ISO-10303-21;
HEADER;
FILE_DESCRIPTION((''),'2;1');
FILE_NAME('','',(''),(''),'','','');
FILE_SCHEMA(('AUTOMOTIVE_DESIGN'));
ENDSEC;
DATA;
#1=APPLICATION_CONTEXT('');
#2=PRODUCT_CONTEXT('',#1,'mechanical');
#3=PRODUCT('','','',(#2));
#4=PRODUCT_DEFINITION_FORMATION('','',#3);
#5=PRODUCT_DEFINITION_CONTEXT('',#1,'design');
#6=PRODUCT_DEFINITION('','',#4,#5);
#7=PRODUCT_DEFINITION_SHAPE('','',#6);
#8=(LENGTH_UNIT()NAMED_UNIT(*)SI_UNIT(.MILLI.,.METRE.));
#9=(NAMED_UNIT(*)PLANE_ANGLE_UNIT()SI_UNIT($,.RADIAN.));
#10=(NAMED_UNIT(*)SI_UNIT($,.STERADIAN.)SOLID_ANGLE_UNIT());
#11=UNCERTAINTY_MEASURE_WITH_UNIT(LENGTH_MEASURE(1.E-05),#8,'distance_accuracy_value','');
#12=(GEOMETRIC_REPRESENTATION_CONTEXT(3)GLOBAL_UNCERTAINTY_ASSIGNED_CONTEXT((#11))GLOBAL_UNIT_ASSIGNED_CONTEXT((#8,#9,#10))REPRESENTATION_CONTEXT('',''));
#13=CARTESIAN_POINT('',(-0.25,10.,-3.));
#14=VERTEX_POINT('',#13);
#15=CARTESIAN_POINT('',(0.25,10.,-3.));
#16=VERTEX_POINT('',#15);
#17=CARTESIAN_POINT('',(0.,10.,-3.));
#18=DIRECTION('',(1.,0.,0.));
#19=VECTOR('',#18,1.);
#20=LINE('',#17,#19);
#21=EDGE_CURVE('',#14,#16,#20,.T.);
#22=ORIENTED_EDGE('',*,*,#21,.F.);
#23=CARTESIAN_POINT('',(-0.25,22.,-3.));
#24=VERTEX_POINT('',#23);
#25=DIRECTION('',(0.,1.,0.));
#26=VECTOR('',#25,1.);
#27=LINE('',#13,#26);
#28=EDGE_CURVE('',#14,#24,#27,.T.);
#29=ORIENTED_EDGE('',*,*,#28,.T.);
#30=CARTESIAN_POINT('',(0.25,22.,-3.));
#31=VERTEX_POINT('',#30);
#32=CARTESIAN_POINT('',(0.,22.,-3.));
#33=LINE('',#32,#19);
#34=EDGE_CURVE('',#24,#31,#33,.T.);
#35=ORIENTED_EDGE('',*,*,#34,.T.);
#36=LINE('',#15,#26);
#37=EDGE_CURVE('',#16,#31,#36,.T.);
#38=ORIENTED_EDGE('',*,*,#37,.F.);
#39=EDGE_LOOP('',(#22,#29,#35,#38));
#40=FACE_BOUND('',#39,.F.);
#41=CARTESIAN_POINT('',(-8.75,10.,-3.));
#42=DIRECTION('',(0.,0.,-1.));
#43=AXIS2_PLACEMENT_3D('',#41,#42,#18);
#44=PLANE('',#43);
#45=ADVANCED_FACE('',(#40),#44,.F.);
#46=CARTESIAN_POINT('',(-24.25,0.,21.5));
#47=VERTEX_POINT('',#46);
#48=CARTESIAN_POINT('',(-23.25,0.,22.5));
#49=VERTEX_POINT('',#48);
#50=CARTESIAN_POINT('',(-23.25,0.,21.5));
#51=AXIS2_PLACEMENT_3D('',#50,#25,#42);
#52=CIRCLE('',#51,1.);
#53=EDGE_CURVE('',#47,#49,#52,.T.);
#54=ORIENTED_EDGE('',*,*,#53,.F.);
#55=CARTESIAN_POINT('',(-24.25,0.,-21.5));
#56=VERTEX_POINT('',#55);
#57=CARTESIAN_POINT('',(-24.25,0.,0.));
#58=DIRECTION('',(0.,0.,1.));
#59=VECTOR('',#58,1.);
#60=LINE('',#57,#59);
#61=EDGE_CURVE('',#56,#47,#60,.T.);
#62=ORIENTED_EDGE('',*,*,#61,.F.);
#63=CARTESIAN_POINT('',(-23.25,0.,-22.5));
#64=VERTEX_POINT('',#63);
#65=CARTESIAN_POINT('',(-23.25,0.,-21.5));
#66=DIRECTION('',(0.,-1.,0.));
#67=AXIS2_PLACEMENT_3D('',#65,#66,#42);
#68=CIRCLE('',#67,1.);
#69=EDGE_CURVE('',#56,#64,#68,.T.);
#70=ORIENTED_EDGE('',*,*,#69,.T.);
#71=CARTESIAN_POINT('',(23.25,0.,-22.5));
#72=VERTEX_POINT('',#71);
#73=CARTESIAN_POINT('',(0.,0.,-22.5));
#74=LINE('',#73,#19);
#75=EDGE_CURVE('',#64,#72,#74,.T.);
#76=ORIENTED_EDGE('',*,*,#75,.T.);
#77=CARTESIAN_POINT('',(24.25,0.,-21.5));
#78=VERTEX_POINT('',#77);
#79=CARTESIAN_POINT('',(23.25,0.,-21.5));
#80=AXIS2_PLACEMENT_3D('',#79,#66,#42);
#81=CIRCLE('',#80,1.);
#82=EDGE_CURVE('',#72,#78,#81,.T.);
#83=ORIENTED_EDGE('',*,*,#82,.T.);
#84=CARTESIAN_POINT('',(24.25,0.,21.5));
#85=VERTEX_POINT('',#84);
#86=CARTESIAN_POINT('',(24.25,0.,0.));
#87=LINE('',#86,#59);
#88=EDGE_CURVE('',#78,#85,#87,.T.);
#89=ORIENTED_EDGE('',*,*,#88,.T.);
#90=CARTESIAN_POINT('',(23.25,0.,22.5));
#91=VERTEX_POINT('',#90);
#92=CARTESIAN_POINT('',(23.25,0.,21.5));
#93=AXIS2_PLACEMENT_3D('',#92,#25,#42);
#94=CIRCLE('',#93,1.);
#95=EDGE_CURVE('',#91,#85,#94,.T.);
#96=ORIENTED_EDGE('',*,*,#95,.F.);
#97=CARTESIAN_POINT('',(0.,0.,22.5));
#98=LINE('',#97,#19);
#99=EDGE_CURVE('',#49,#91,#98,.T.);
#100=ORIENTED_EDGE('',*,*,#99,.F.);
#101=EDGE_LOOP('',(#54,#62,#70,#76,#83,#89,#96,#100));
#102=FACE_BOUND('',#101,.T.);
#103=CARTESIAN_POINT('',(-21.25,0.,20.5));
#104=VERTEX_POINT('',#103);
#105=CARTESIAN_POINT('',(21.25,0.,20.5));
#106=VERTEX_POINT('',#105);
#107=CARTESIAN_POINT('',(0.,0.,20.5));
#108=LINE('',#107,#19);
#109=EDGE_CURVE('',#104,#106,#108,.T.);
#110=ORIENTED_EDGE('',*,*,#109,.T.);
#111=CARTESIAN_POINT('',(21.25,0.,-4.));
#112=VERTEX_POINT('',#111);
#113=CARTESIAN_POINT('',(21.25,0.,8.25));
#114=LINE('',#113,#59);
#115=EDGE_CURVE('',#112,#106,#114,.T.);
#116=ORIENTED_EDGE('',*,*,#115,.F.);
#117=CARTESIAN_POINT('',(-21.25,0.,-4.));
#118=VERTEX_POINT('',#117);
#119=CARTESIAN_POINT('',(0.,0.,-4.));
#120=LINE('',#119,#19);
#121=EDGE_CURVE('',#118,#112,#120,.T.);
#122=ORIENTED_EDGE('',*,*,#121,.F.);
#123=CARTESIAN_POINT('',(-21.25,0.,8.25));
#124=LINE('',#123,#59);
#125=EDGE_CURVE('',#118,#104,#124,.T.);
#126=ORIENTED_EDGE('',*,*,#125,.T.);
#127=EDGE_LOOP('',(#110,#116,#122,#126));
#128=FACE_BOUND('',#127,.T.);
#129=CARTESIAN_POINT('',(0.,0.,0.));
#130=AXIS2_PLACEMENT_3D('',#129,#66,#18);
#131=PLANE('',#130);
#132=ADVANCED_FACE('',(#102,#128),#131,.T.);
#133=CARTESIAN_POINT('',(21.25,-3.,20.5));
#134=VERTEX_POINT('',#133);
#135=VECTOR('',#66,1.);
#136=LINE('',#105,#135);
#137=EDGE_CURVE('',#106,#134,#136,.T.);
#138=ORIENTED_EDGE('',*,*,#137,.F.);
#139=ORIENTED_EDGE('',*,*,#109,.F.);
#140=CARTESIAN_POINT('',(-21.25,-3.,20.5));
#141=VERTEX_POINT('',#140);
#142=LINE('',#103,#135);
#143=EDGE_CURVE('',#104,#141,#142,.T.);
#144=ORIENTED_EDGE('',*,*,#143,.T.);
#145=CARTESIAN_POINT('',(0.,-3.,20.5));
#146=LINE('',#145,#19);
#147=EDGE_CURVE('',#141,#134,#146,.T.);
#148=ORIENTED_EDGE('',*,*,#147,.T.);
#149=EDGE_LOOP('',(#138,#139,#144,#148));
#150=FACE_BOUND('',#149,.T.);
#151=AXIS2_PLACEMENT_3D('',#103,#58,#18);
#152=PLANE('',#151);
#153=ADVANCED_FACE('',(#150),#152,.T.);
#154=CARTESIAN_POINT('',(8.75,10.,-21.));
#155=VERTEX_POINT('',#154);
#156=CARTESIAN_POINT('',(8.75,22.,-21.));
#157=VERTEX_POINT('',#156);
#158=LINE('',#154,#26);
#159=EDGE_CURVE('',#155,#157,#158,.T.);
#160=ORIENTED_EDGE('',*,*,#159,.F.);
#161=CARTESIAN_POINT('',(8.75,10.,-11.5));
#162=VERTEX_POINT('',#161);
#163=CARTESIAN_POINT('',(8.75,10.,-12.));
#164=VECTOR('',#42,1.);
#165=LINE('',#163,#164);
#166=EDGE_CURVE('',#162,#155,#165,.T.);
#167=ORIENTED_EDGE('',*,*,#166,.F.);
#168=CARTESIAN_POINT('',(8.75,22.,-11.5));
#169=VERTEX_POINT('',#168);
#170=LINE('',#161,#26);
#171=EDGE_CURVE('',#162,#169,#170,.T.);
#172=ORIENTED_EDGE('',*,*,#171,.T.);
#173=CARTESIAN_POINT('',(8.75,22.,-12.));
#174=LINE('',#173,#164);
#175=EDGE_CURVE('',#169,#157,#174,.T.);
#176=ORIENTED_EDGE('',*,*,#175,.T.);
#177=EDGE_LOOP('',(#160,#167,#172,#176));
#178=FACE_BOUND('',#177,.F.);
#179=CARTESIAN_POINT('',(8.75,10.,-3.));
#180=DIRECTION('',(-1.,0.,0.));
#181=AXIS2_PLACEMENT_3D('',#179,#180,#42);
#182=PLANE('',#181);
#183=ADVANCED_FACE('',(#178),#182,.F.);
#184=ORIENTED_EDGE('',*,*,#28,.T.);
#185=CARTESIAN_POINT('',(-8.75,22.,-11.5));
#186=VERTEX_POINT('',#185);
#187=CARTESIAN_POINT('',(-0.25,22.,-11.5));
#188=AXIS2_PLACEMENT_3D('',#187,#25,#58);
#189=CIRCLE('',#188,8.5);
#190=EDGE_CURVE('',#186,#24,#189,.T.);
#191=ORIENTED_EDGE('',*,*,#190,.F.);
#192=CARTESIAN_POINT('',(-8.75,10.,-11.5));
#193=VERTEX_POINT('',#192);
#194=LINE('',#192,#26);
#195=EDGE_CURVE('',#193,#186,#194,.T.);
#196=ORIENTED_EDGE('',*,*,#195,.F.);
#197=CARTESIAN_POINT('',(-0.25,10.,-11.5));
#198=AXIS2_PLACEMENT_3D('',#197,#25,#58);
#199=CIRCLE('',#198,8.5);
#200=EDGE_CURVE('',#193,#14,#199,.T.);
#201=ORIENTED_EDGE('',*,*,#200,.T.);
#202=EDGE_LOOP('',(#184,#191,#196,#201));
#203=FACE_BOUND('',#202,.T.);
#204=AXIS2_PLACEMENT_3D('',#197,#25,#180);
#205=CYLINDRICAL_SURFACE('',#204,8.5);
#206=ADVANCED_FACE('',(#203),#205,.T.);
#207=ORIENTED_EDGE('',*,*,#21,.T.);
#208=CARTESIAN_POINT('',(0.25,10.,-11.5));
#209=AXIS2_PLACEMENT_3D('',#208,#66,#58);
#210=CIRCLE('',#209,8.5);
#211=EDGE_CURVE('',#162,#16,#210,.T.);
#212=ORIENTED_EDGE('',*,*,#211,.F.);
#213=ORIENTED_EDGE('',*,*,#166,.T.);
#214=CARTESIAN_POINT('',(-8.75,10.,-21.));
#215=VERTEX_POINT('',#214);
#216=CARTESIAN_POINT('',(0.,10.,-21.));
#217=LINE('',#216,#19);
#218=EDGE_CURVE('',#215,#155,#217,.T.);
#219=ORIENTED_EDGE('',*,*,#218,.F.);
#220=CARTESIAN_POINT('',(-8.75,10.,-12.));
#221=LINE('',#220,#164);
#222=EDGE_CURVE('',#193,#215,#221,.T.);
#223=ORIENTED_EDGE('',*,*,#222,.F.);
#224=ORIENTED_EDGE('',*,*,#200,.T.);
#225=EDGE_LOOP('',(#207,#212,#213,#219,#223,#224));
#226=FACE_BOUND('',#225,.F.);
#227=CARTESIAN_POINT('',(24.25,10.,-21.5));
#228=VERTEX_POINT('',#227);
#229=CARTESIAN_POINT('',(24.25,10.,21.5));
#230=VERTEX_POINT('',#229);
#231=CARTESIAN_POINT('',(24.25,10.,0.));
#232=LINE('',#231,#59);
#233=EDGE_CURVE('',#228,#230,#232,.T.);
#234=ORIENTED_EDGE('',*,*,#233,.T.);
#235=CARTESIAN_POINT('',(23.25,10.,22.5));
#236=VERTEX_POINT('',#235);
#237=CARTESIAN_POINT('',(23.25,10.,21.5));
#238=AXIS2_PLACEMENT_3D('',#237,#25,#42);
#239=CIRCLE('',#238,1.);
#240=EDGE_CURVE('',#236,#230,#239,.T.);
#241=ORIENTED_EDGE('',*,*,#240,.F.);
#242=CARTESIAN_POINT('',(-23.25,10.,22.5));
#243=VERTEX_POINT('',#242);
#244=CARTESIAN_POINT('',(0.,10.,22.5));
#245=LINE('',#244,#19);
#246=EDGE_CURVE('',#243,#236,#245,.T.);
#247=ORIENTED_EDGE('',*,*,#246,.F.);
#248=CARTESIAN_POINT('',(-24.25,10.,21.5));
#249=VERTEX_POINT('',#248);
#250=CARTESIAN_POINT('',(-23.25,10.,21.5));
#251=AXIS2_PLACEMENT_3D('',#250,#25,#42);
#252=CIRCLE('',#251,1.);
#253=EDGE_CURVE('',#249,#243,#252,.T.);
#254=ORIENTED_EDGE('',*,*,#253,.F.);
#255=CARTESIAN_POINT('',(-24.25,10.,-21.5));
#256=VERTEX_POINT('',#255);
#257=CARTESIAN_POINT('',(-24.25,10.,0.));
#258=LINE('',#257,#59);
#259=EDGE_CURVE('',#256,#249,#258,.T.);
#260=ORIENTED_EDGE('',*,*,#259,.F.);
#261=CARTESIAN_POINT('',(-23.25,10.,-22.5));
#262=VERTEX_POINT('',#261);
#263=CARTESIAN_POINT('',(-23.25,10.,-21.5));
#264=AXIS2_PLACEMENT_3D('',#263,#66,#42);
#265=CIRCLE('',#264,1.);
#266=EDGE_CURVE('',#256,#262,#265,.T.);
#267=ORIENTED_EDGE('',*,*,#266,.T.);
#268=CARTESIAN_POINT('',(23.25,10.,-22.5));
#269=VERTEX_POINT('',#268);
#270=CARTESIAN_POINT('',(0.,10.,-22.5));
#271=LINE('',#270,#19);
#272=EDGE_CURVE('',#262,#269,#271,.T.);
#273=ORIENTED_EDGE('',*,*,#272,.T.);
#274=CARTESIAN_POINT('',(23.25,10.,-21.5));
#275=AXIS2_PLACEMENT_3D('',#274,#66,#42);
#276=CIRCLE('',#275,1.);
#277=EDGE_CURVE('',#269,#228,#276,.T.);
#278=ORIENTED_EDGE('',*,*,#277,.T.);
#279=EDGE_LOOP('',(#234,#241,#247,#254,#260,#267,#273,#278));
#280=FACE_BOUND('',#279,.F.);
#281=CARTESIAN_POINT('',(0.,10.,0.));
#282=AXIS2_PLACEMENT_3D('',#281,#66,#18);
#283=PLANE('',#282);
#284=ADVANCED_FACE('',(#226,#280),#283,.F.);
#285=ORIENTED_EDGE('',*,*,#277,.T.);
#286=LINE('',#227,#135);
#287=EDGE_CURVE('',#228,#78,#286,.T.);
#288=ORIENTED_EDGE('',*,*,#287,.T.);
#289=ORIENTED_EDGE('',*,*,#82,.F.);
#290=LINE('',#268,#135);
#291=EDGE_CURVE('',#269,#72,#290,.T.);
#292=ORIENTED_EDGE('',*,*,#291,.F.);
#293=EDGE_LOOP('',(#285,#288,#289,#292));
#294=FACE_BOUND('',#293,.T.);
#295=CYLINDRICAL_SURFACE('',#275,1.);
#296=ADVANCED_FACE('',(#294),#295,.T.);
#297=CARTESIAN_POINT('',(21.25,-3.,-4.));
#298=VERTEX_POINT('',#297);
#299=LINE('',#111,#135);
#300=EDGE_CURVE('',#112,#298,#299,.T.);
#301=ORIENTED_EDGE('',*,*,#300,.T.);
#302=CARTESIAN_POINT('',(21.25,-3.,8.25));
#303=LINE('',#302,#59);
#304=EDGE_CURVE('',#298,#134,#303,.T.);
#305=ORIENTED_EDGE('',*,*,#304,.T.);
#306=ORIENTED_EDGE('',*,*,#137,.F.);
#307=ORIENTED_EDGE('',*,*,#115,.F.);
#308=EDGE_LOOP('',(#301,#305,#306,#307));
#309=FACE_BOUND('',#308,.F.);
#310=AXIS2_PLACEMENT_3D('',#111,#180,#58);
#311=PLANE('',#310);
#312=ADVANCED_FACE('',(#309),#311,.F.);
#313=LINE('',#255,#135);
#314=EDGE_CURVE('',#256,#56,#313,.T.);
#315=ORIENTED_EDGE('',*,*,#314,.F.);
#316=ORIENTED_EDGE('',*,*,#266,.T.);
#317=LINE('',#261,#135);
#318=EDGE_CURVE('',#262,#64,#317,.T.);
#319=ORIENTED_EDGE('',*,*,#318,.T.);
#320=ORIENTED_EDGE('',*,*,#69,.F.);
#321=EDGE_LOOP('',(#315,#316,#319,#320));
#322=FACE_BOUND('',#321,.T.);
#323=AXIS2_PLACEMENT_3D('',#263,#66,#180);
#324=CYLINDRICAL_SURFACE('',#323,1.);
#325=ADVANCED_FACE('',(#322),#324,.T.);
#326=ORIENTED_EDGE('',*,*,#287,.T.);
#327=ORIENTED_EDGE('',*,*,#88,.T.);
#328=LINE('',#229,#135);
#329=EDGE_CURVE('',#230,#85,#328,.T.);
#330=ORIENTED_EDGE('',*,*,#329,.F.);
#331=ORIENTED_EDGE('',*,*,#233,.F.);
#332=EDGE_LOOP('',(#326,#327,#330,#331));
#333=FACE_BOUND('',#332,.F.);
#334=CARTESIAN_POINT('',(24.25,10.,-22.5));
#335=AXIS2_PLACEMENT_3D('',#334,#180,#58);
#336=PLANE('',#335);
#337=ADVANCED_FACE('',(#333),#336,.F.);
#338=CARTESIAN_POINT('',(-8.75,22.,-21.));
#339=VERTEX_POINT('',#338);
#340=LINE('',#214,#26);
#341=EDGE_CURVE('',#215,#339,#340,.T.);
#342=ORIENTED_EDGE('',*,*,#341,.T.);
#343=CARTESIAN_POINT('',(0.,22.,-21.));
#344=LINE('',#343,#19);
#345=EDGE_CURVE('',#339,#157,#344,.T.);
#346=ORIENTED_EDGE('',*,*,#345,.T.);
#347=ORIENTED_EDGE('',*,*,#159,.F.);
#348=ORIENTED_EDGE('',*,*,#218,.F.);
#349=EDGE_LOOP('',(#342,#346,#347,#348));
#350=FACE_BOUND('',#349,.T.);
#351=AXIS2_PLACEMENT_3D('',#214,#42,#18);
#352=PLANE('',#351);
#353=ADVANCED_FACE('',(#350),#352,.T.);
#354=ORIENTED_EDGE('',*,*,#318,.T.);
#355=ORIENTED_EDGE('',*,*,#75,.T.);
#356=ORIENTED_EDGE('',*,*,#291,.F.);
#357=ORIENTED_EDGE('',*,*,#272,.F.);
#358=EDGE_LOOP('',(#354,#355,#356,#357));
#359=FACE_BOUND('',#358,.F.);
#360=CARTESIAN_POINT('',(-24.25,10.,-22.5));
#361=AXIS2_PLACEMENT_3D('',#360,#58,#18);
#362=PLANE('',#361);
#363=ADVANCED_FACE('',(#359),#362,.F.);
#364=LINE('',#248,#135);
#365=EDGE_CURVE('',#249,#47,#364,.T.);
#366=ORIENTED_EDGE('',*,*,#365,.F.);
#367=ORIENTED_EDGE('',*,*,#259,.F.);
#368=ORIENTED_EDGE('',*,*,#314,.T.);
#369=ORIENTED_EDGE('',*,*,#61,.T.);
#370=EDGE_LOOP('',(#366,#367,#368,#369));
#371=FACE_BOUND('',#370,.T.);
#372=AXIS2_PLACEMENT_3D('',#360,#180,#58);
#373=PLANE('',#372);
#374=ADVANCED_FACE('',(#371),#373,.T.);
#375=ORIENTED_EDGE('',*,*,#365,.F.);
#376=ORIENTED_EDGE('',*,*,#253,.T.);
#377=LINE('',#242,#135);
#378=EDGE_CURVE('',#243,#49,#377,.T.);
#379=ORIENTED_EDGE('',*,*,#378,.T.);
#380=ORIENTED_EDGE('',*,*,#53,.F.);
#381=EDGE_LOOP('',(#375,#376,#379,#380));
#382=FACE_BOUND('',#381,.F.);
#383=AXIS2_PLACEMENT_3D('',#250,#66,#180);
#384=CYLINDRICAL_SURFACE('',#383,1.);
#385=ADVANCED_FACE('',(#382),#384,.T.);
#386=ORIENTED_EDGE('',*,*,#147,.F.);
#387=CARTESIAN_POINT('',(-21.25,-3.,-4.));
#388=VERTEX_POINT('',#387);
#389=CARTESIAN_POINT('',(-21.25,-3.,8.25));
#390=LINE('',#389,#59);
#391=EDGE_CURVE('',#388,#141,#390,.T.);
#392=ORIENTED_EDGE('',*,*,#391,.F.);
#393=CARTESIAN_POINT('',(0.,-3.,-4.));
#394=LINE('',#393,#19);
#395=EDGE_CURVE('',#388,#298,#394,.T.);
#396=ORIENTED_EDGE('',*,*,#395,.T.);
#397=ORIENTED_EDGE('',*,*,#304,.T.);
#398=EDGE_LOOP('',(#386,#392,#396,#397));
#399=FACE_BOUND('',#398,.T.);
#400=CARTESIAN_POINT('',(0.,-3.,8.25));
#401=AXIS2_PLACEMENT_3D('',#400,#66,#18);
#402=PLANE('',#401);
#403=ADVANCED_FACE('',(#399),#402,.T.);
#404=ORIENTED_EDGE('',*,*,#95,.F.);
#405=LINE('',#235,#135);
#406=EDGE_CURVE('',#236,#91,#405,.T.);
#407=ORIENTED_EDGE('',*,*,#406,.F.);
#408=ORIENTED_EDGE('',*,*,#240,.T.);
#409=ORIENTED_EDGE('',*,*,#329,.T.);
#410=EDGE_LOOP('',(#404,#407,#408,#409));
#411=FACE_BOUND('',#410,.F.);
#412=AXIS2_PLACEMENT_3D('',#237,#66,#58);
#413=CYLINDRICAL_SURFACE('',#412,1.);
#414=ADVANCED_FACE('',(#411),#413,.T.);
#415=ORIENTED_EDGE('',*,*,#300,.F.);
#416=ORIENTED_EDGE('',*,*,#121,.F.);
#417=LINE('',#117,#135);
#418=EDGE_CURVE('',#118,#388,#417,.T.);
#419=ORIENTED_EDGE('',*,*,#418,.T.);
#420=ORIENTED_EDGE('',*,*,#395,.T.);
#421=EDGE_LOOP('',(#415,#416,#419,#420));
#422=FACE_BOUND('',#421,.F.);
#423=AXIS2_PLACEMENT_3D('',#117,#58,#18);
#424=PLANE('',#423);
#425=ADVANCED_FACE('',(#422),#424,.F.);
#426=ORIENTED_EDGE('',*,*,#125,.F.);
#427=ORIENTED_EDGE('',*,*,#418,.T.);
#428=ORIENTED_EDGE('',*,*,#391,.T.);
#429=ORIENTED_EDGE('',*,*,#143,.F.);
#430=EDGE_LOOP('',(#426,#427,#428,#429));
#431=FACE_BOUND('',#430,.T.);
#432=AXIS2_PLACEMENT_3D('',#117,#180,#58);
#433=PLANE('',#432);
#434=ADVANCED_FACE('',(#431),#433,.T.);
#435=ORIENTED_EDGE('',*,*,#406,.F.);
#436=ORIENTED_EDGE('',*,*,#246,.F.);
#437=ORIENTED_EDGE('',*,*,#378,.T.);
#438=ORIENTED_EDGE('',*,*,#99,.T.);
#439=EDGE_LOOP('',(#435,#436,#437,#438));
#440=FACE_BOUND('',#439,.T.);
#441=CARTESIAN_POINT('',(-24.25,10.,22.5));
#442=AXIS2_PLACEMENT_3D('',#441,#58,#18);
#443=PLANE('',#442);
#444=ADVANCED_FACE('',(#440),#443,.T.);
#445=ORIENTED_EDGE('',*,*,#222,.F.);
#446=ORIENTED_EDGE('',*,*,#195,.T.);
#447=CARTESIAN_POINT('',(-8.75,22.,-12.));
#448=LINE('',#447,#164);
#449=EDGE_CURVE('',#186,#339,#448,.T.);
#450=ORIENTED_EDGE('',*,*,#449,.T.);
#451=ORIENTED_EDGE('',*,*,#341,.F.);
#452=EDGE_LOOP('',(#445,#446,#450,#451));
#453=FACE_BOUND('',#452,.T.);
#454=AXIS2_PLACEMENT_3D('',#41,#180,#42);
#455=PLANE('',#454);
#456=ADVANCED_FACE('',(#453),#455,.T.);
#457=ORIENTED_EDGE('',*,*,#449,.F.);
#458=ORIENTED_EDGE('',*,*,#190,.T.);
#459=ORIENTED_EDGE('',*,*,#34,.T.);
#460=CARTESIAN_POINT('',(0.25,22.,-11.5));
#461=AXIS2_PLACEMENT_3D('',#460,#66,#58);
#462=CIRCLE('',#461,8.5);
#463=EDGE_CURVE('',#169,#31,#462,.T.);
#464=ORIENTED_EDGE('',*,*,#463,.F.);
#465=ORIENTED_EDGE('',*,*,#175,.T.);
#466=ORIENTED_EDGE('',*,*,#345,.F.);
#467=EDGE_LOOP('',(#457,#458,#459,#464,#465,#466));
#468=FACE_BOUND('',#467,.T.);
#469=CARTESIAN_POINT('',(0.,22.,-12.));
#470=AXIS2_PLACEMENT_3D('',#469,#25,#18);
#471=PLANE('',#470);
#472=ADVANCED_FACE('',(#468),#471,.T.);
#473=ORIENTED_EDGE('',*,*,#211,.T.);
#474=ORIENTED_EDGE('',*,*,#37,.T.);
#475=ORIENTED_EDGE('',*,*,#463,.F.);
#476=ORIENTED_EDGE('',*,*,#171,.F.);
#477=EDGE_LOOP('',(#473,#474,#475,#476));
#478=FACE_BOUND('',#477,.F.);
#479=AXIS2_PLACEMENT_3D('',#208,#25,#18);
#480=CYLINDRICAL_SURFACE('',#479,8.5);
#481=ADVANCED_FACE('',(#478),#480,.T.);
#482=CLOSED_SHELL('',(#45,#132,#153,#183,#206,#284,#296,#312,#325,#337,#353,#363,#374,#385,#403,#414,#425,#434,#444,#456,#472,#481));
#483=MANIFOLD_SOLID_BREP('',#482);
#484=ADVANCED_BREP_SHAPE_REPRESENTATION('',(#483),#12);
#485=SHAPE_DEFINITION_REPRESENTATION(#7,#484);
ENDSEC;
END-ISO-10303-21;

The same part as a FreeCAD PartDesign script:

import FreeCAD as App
import Part
import Sketcher
from FreeCAD import Vector
Q = App.Units.Quantity


def edges_at(feature, points):
    """Names of the edges that pass closest to the given points."""
    edges = feature.Shape.Edges
    near = lambda p: min(range(len(edges)), key=lambda i: edges[i].distToShape(Part.Vertex(*p))[0])
    return sorted({f"Edge{near(p) + 1}" for p in points})


def add_polygon(sketch, points):
    """Adds a closed chain of lines whose ends are joined by coincident constraints."""
    first, n = sketch.GeometryCount, len(points)
    for a, b in zip(points, points[1:] + points[:1]):
        sketch.addGeometry(Part.LineSegment(App.Vector(*a, 0), App.Vector(*b, 0)), False)
    for i in range(n):
        sketch.addConstraint(Sketcher.Constraint("Coincident", first + i, 2, first + (i + 1) % n, 1))

doc = App.newDocument("Part")
body = doc.addObject("PartDesign::Body", "Body")

sketch1 = doc.addObject("Sketcher::SketchObject", "Sketch")
body.addObject(sketch1)
sketch1.AttachmentSupport = (doc.XZ_Plane, [""])
sketch1.MapMode = "FlatFace"
add_polygon(sketch1, [(-24, 22), (-24, -22), (24, -22), (24, 22)])
sketch1.addConstraint([
    Sketcher.Constraint("Vertical", 0),
    Sketcher.Constraint("Horizontal", 1),
    Sketcher.Constraint("Vertical", 2),
    Sketcher.Constraint("Horizontal", 3),
    Sketcher.Constraint("Symmetric", 0, 2, 2, 2, -1, 1),
    Sketcher.Constraint("DistanceY", 0, 2, 0, 1, Q("45 mm")),
    Sketcher.Constraint("DistanceX", 1, 1, 1, 2, Q("48.5 mm")),
])
pad1 = doc.addObject("PartDesign::Pad", "Pad")
body.addObject(pad1)
pad1.Profile = sketch1
pad1.Length = 10

sketch2 = doc.addObject("Sketcher::SketchObject", "Sketch001")
body.addObject(sketch2)
sketch2.AttachmentSupport = (doc.XZ_Plane, [""])
sketch2.MapMode = "FlatFace"
sketch2.AttachmentOffset = App.Placement(Vector(0, 0, 10), App.Rotation())
add_polygon(sketch2, [(-21, 20), (-21, -4), (21, -4), (21, 20)])
sketch2.addConstraint([
    Sketcher.Constraint("Vertical", 0),
    Sketcher.Constraint("Horizontal", 1),
    Sketcher.Constraint("Vertical", 2),
    Sketcher.Constraint("Horizontal", 3),
    Sketcher.Constraint("DistanceX", 1, 1, 1, 2, Q("42.5 mm")),
    Sketcher.Constraint("DistanceY", 0, 2, 0, 1, Q("24.5 mm")),
    Sketcher.Constraint("DistanceY", 0, 2, -1, 1, Q("4 mm")),
    Sketcher.Constraint("DistanceX", 0, 2, -1, 1, Q("21.25 mm")),
])
pad2 = doc.addObject("PartDesign::Pad", "Pad001")
body.addObject(pad2)
pad2.Profile = sketch2
pad2.Length = 3

sketch3 = doc.addObject("Sketcher::SketchObject", "Sketch002")
body.addObject(sketch3)
sketch3.AttachmentSupport = (doc.XZ_Plane, [""])
sketch3.MapMode = "FlatFace"
add_polygon(sketch3, [(-9, -21), (-9, -3), (9, -3), (9, -21)])
sketch3.addConstraint([
    Sketcher.Constraint("Vertical", 0),
    Sketcher.Constraint("Horizontal", 1),
    Sketcher.Constraint("Vertical", 2),
    Sketcher.Constraint("Horizontal", 3),
    Sketcher.Constraint("DistanceY", 0, 1, 0, 2, Q("18 mm")),
    Sketcher.Constraint("DistanceX", 1, 1, 1, 2, Q("17.5 mm")),
    Sketcher.Constraint("DistanceY", 0, 2, -1, 1, Q("3 mm")),
    Sketcher.Constraint("DistanceX", 0, 2, -1, 1, Q("8.75 mm")),
])
pad3 = doc.addObject("PartDesign::Pad", "Pad002")
body.addObject(pad3)
pad3.Profile = sketch3
pad3.Length = 12
pad3.Reversed = True
doc.recompute()

fillet = doc.addObject("PartDesign::Fillet", "Fillet")
body.addObject(fillet)
fillet.Base = (pad3, edges_at(pad3, [
    (24.25, -5, 22.5),
    (24.25, -5, -22.5),
    (-24.25, -5, 22.5),
    (-24.25, -5, -22.5),
]))
fillet.Radius = 1
doc.recompute()

fillet2 = doc.addObject("PartDesign::Fillet", "Fillet001")
body.addObject(fillet2)
fillet2.Base = (fillet, edges_at(fillet, [(8.75, 6, -3), (-8.75, 6, -3)]))
fillet2.Radius = 8.5
body2 = doc.addObject("PartDesign::Body", "Body001")
doc.recompute()

body.Placement = App.Placement(Vector(0, 10, 0), App.Rotation(Vector(0, 0, 1), 0))
boolean = doc.addObject("PartDesign::Boolean", "Boolean")
body2.addObject(boolean)
boolean.Type = "Fuse"
boolean.addObjects([body])

doc.recompute()
